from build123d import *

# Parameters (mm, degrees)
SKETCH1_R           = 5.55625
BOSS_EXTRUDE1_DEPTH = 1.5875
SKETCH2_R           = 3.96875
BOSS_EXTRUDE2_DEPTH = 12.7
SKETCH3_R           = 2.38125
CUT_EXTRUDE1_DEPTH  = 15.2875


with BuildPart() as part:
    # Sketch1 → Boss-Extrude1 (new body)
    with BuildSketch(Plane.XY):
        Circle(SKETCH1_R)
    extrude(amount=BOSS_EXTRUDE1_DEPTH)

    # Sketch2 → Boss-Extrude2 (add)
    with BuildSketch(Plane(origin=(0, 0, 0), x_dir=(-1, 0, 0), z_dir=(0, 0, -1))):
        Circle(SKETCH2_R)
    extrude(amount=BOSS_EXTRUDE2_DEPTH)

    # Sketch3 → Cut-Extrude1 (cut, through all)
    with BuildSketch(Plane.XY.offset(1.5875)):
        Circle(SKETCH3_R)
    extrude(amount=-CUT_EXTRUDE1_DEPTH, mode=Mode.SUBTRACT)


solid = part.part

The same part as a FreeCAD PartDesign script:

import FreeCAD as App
import Part
import Sketcher

V = App.Vector
Q = App.Units.Quantity

doc = App.newDocument("Part")
params = doc.addObject("Spreadsheet::Sheet", "Params")
for row, (alias, value) in enumerate([
    ("sketch1_diameter", "0.4375 in"),
    ("pad1_length", "0.0625 in"),
    ("sketch2_diameter", "0.3125 in"),
    ("pad2_length", "0.5 in"),
    ("sketch3_diameter", "0.1875 in"),
], start=1):
    params.set(f"A{row}", alias)
    params.set(f"B{row}", "=" + value)
    params.setAlias(f"B{row}", alias)

body = doc.addObject("PartDesign::Body", "Body")

# Sketch on XY plane
sketch1 = doc.addObject("Sketcher::SketchObject", "Sketch")
body.addObject(sketch1)
sketch1.AttachmentSupport = (doc.XY_Plane, [""])
sketch1.MapMode = "FlatFace"
sketch1.addGeometry(Part.Circle(V(0, 0, 0), V(0, 0, 1), 6), False)
sketch1.addConstraint([
    Sketcher.Constraint("Coincident", 0, 3, -1, 1),
    Sketcher.Constraint("Diameter", 0, Q("0.4375 in")),
])
sketch1.setExpression("Constraints[1]", "Params.sketch1_diameter")
pad1 = doc.addObject("PartDesign::Pad", "Pad")
body.addObject(pad1)
pad1.Profile = sketch1
pad1.setExpression("Length", "Params.pad1_length")

# Sketch on XY plane
sketch2 = doc.addObject("Sketcher::SketchObject", "Sketch001")
body.addObject(sketch2)
sketch2.AttachmentSupport = (doc.XY_Plane, [""])
sketch2.MapMode = "FlatFace"
sketch2.addGeometry(Part.Circle(V(0, 0, 0), V(0, 0, 1), 4), False)
sketch2.addConstraint([
    Sketcher.Constraint("Coincident", 0, 3, -1, 1),
    Sketcher.Constraint("Diameter", 0, Q("0.3125 in")),
])
sketch2.setExpression("Constraints[1]", "Params.sketch2_diameter")
pad2 = doc.addObject("PartDesign::Pad", "Pad001")
body.addObject(pad2)
pad2.Profile = sketch2
pad2.setExpression("Length", "Params.pad2_length")
pad2.Reversed = True

# Sketch on XY plane
sketch3 = doc.addObject("Sketcher::SketchObject", "Sketch002")
body.addObject(sketch3)
sketch3.AttachmentSupport = (doc.XY_Plane, [""])
sketch3.MapMode = "FlatFace"
sketch3.AttachmentOffset = App.Placement(V(0, 0, 0.0625 * 25.4), App.Rotation())
sketch3.addGeometry(Part.Circle(V(0, 0, 0), V(0, 0, 1), 2.4), False)
sketch3.addConstraint([
    Sketcher.Constraint("Coincident", 0, 3, -1, 1),
    Sketcher.Constraint("Diameter", 0, Q("0.1875 in")),
])
sketch3.setExpression("Constraints[1]", "Params.sketch3_diameter")
pocket1 = doc.addObject("PartDesign::Pocket", "Pocket")
body.addObject(pocket1)
pocket1.Profile = sketch3
pocket1.Type = "ThroughAll"

doc.recompute()
